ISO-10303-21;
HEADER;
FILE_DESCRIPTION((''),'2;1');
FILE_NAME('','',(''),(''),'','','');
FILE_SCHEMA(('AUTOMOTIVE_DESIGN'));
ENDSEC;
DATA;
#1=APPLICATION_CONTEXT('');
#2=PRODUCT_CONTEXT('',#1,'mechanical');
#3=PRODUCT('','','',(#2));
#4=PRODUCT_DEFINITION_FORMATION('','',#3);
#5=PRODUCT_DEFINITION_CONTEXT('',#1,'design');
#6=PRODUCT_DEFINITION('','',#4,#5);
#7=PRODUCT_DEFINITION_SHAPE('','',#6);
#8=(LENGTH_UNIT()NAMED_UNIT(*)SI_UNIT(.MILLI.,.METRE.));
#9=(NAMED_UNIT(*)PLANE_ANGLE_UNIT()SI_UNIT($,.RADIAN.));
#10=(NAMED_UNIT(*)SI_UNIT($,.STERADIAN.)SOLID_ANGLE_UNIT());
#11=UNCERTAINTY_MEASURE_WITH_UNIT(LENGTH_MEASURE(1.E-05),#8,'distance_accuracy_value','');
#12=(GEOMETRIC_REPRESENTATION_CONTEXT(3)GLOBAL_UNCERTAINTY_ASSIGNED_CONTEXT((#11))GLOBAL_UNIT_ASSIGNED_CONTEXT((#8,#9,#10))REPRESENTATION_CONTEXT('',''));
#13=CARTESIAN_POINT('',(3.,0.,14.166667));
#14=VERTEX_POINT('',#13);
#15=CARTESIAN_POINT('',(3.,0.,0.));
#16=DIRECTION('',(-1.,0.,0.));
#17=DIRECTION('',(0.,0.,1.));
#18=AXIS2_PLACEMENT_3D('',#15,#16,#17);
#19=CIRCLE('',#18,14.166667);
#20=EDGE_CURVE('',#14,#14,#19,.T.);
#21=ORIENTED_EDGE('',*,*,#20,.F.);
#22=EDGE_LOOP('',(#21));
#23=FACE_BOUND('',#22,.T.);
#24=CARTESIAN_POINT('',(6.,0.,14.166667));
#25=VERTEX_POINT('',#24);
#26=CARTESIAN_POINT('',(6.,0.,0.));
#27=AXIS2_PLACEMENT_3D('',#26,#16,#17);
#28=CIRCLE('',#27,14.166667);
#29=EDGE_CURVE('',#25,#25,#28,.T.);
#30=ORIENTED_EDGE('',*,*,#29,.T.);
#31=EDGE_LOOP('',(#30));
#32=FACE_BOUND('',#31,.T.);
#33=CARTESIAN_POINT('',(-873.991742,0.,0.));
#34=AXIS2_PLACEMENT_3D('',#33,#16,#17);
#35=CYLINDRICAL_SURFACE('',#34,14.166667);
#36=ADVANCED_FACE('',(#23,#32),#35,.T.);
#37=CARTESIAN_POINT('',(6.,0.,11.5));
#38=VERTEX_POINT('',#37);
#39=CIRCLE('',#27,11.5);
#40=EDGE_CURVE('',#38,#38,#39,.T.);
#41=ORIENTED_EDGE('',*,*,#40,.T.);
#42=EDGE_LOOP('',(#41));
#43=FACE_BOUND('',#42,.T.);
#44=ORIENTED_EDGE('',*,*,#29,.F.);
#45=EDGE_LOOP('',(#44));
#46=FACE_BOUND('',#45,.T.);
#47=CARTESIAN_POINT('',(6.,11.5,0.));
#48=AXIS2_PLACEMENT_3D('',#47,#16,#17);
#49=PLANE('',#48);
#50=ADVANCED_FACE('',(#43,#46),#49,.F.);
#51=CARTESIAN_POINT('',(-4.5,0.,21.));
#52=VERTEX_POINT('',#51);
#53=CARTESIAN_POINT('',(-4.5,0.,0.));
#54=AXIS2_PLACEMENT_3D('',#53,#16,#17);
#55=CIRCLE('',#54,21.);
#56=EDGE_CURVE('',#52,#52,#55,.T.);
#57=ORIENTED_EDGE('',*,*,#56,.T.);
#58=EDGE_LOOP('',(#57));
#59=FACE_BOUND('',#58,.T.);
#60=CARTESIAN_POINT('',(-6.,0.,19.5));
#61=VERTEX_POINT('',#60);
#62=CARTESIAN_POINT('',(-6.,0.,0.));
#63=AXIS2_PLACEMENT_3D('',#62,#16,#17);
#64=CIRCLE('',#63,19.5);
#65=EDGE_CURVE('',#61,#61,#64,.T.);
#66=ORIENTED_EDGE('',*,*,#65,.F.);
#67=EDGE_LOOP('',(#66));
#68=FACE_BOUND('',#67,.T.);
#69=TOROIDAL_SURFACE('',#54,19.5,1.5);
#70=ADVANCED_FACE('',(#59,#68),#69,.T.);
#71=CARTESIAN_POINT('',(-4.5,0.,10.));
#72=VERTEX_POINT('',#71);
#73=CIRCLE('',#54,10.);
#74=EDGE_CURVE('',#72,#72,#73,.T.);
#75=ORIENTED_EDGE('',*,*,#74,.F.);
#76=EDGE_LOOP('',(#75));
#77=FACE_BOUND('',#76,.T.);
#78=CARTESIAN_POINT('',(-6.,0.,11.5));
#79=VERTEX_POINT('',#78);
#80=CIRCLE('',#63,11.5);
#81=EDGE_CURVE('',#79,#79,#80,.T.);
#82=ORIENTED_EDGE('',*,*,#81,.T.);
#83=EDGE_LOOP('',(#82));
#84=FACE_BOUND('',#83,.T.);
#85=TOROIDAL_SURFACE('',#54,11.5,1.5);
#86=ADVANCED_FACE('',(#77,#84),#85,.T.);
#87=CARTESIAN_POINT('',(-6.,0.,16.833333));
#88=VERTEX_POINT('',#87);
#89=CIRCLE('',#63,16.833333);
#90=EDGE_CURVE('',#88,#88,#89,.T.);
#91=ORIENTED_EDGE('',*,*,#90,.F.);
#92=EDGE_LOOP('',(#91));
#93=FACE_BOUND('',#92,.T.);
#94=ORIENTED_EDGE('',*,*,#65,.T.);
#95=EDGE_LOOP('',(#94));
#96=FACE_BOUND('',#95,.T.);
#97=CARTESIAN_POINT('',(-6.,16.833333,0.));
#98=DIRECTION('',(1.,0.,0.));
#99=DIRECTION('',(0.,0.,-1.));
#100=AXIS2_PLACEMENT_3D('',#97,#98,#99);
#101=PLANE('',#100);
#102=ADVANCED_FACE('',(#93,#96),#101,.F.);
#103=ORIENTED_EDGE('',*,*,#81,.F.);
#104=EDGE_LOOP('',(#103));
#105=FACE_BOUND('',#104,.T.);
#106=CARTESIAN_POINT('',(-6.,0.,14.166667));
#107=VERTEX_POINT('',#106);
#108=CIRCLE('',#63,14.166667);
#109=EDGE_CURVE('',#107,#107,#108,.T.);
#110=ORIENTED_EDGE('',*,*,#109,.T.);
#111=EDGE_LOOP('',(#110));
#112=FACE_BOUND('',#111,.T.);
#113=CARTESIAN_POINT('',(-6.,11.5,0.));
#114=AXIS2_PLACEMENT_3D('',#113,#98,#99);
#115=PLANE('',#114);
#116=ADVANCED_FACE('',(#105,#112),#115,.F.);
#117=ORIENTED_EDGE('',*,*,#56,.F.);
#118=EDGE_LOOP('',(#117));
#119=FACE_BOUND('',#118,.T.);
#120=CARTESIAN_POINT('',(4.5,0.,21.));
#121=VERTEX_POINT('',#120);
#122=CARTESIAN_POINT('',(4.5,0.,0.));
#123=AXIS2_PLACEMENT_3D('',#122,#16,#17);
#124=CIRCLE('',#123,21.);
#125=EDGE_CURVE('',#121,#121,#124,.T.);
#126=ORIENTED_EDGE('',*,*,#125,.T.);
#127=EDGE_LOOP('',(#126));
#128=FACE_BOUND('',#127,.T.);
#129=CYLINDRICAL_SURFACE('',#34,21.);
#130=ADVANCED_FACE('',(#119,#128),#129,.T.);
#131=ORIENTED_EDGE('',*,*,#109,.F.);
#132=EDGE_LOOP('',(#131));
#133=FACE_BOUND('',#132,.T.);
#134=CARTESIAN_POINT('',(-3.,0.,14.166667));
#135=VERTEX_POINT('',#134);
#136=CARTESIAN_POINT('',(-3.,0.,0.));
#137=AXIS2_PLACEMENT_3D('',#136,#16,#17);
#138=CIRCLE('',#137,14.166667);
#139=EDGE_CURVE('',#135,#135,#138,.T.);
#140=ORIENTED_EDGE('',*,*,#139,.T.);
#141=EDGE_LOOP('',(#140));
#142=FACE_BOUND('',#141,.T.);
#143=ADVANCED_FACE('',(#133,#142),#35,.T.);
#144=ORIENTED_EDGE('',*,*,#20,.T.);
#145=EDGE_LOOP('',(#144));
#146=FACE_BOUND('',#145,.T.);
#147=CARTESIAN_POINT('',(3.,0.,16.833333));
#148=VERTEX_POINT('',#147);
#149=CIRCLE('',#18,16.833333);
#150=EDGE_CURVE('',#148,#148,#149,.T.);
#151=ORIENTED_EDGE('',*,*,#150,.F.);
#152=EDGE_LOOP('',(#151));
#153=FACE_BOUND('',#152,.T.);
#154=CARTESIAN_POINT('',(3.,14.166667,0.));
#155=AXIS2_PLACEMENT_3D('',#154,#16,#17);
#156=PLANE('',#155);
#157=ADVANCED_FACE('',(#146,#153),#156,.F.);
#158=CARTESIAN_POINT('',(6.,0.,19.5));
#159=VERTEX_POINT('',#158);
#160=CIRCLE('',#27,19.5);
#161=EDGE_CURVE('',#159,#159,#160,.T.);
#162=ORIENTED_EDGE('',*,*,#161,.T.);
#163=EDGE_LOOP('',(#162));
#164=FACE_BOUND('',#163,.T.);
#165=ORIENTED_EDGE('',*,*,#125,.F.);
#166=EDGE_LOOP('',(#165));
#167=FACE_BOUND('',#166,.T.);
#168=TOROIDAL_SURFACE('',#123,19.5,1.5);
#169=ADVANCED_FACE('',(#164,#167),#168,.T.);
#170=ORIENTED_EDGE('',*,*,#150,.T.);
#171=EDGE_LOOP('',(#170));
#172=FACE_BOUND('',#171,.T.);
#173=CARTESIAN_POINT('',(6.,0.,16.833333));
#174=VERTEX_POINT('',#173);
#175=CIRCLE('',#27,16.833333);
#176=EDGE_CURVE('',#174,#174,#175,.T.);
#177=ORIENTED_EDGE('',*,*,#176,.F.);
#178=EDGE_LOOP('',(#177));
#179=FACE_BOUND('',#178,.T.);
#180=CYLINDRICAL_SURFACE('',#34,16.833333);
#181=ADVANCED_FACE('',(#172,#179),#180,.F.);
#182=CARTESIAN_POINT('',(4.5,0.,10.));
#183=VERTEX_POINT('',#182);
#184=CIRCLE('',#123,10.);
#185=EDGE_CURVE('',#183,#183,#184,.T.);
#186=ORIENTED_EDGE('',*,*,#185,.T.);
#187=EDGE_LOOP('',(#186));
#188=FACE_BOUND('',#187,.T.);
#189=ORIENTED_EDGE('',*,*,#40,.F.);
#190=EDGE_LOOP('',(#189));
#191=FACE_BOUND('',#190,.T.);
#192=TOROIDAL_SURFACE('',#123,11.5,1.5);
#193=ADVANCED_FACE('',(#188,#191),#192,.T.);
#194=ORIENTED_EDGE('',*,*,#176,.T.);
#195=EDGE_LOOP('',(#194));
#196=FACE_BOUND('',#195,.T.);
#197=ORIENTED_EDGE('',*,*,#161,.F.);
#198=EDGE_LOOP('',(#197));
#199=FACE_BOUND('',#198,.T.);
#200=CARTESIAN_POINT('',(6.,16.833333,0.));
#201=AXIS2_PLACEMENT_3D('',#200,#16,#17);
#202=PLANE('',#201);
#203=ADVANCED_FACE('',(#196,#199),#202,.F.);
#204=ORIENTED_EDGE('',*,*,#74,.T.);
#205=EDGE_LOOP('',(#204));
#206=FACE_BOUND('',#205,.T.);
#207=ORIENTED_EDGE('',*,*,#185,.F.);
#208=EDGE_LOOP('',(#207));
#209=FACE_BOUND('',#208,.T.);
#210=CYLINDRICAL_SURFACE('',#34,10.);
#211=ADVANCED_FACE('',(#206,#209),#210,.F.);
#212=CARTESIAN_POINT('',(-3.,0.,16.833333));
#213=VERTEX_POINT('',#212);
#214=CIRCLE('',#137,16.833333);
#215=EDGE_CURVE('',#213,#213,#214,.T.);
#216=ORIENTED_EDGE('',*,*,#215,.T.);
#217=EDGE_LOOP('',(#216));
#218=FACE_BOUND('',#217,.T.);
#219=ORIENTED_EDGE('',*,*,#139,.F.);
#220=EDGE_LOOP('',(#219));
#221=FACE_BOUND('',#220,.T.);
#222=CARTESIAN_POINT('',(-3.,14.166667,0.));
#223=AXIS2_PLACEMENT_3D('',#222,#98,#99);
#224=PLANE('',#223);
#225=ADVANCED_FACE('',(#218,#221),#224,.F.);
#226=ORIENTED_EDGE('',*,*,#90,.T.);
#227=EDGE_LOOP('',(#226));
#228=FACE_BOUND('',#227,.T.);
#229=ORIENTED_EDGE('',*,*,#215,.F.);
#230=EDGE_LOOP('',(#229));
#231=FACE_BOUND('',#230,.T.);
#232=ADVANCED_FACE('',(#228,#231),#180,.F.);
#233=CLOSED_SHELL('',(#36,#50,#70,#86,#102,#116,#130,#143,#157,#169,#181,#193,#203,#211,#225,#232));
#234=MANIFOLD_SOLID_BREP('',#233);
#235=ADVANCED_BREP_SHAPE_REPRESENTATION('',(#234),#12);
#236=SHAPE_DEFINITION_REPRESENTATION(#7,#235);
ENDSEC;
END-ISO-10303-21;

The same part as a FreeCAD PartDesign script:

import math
import FreeCAD as App
import Part
import Sketcher
Q = App.Units.Quantity

doc = App.newDocument("Part")
body = doc.addObject("PartDesign::Body", "Body")

# Sketch on XY plane
sketch1 = body.newObject("Sketcher::SketchObject", "Sketch")
sketch1.AttachmentSupport = (doc.getObject("XY_Plane"), [""])
sketch1.MapMode = "FlatFace"
sketch1.addGeometry([
    Part.LineSegment(App.Vector(-4.5, 10, 0), App.Vector(4.5, 10, 0)),  # 0
    Part.ArcOfCircle(Part.Circle(App.Vector(4.5, 11.5, 0), App.Vector(0, 0, 1), 1.5), math.radians(-90), math.radians(0)),  # 1
    Part.LineSegment(App.Vector(6, 11.5, 0), App.Vector(6, 14.166667, 0)),  # 2
    Part.LineSegment(App.Vector(6, 14.166667, 0), App.Vector(3, 14.166667, 0)),  # 3
    Part.LineSegment(App.Vector(3, 14.166667, 0), App.Vector(3, 16.833333, 0)),  # 4
    Part.LineSegment(App.Vector(3, 16.833333, 0), App.Vector(6, 16.833333, 0)),  # 5
    Part.LineSegment(App.Vector(6, 16.833333, 0), App.Vector(6, 19.5, 0)),  # 6
    Part.ArcOfCircle(Part.Circle(App.Vector(4.5, 19.5, 0), App.Vector(0, 0, 1), 1.5), math.radians(0), math.radians(90)),  # 7
    Part.LineSegment(App.Vector(4.5, 21, 0), App.Vector(-4.5, 21, 0)),  # 8
    Part.ArcOfCircle(Part.Circle(App.Vector(-4.5, 19.5, 0), App.Vector(0, 0, 1), 1.5), math.radians(90), math.radians(180)),  # 9
    Part.LineSegment(App.Vector(-6, 19.5, 0), App.Vector(-6, 16.833333, 0)),  # 10
    Part.LineSegment(App.Vector(-6, 16.833333, 0), App.Vector(-3, 16.833333, 0)),  # 11
    Part.LineSegment(App.Vector(-3, 16.833333, 0), App.Vector(-3, 14.166667, 0)),  # 12
    Part.LineSegment(App.Vector(-3, 14.166667, 0), App.Vector(-6, 14.166667, 0)),  # 13
    Part.LineSegment(App.Vector(-6, 14.166667, 0), App.Vector(-6, 11.5, 0)),  # 14
    Part.ArcOfCircle(Part.Circle(App.Vector(-4.5, 11.5, 0), App.Vector(0, 0, 1), 1.5), math.radians(180), math.radians(270)),  # 15
], False)
sketch1.addConstraint([
    Sketcher.Constraint("Tangent", 0, 2, 1, 1),
    Sketcher.Constraint("Tangent", 1, 2, 2, 1),
    Sketcher.Constraint("Coincident", 2, 2, 3, 1),
    Sketcher.Constraint("Coincident", 3, 2, 4, 1),
    Sketcher.Constraint("Coincident", 4, 2, 5, 1),
    Sketcher.Constraint("Coincident", 5, 2, 6, 1),
    Sketcher.Constraint("Tangent", 6, 2, 7, 1),
    Sketcher.Constraint("Tangent", 7, 2, 8, 1),
    Sketcher.Constraint("Tangent", 8, 2, 9, 1),
    Sketcher.Constraint("Tangent", 9, 2, 10, 1),
    Sketcher.Constraint("Coincident", 10, 2, 11, 1),
    Sketcher.Constraint("Coincident", 11, 2, 12, 1),
    Sketcher.Constraint("Coincident", 12, 2, 13, 1),
    Sketcher.Constraint("Coincident", 13, 2, 14, 1),
    Sketcher.Constraint("Tangent", 14, 2, 15, 1),
    Sketcher.Constraint("Tangent", 15, 2, 0, 1),
    Sketcher.Constraint("Horizontal", 0),
    Sketcher.Constraint("Vertical", 2),
    Sketcher.Constraint("Horizontal", 3),
    Sketcher.Constraint("Vertical", 4),
    Sketcher.Constraint("Horizontal", 5),
    Sketcher.Constraint("Vertical", 6),
    Sketcher.Constraint("Horizontal", 8),
    Sketcher.Constraint("Vertical", 10),
    Sketcher.Constraint("Horizontal", 11),
    Sketcher.Constraint("Vertical", 12),
    Sketcher.Constraint("Horizontal", 13),
    Sketcher.Constraint("Vertical", 14),
    Sketcher.Constraint("Equal", 1, 7),
    Sketcher.Constraint("Equal", 7, 9),
    Sketcher.Constraint("Equal", 9, 15),
    Sketcher.Constraint("Symmetric", 5, 2, 10, 2, -2),
    Sketcher.Constraint("Symmetric", 3, 2, 12, 2, -2),
    Sketcher.Constraint("Vertical", 1, 3, 7, 3),
    Sketcher.Constraint("Vertical", 9, 3, 15, 3),
    Sketcher.Constraint("Equal", 2, 4),
    Sketcher.Constraint("Equal", 4, 6),
    Sketcher.Constraint("Radius", 1, Q("1.5 mm")),
    Sketcher.Constraint("DistanceX", 0, 1, 0, 2, Q("9 mm")),
    Sketcher.Constraint("DistanceX", 3, 2, 3, 1, Q("3 mm")),
    Sketcher.Constraint("DistanceY", -1, 1, 0, 2, Q("10 mm")),
    Sketcher.Constraint("DistanceY", -1, 1, 7, 2, Q("21 mm")),
])
revolution = body.newObject("PartDesign::Revolution", "Revolution")
revolution.Profile = sketch1
revolution.ReferenceAxis = (sketch1, ["H_Axis"])
revolution.Angle = 360

doc.recompute()
